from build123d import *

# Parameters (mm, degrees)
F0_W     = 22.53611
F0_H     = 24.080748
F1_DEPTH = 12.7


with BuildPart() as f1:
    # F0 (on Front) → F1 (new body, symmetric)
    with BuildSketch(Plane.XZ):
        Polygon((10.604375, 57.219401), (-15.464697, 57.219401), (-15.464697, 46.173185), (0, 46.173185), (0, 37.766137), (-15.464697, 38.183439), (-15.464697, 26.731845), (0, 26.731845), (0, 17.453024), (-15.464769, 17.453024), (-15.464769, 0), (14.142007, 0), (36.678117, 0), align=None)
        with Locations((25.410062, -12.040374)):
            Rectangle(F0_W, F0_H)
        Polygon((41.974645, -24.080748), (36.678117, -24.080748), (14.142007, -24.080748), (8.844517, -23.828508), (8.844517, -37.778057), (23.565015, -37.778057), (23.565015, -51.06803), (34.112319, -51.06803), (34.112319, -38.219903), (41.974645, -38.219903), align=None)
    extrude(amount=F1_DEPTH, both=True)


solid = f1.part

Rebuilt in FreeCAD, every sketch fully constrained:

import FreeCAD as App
import Part
import Sketcher
from FreeCAD import Vector
Q = App.Units.Quantity

doc = App.newDocument("Part")
body = doc.addObject("PartDesign::Body", "Body")

sketch1 = body.newObject("Sketcher::SketchObject", "Sketch")
sketch1.AttachmentSupport = (doc.getObject("XZ_Plane"), [""])
sketch1.MapMode = "FlatFace"
sketch1.addGeometry([
    Part.LineSegment(Vector(10.604375, 57.219401, 0), Vector(-15.464697, 57.219401, 0)),
    Part.LineSegment(Vector(-15.464697, 57.219401, 0), Vector(-15.464697, 46.173185, 0)),
    Part.LineSegment(Vector(-15.464697, 46.173185, 0), Vector(0, 46.173185, 0)),
    Part.LineSegment(Vector(0, 46.173185, 0), Vector(0, 37.766137, 0)),
    Part.LineSegment(Vector(0, 37.766137, 0), Vector(-15.464697, 38.183439, 0)),
    Part.LineSegment(Vector(-15.464697, 38.183439, 0), Vector(-15.464697, 26.731845, 0)),
    Part.LineSegment(Vector(-15.464697, 26.731845, 0), Vector(0, 26.731845, 0)),
    Part.LineSegment(Vector(0, 26.731845, 0), Vector(0, 17.453024, 0)),
    Part.LineSegment(Vector(0, 17.453024, 0), Vector(-15.464769, 17.453024, 0)),
    Part.LineSegment(Vector(-15.464769, 17.453024, 0), Vector(-15.464769, 0, 0)),
    Part.LineSegment(Vector(-15.464769, 0, 0), Vector(14.142007, 0, 0)),
    Part.LineSegment(Vector(14.142007, 0, 0), Vector(14.142007, -24.080748, 0)),
    Part.LineSegment(Vector(14.142007, -24.080748, 0), Vector(8.844517, -23.828508, 0)),
    Part.LineSegment(Vector(8.844517, -23.828508, 0), Vector(8.844517, -37.778057, 0)),
    Part.LineSegment(Vector(8.844517, -37.778057, 0), Vector(23.565015, -37.778057, 0)),
    Part.LineSegment(Vector(23.565015, -37.778057, 0), Vector(23.565015, -51.06803, 0)),
    Part.LineSegment(Vector(23.565015, -51.06803, 0), Vector(34.112319, -51.06803, 0)),
    Part.LineSegment(Vector(34.112319, -51.06803, 0), Vector(34.112319, -38.219903, 0)),
    Part.LineSegment(Vector(34.112319, -38.219903, 0), Vector(41.974645, -38.219903, 0)),
    Part.LineSegment(Vector(41.974645, -38.219903, 0), Vector(41.974645, -24.080748, 0)),
    Part.LineSegment(Vector(41.974645, -24.080748, 0), Vector(36.678117, -24.080748, 0)),
    Part.LineSegment(Vector(36.678117, -24.080748, 0), Vector(36.678117, 0, 0)),
    Part.LineSegment(Vector(36.678117, 0, 0), Vector(10.604375, 57.219401, 0)),
], False)
sketch1.addConstraint([
    Sketcher.Constraint("Coincident", 0, 2, 1, 1),
    Sketcher.Constraint("Coincident", 1, 2, 2, 1),
    Sketcher.Constraint("Coincident", 2, 2, 3, 1),
    Sketcher.Constraint("Coincident", 3, 2, 4, 1),
    Sketcher.Constraint("Coincident", 4, 2, 5, 1),
    Sketcher.Constraint("Coincident", 5, 2, 6, 1),
    Sketcher.Constraint("Coincident", 6, 2, 7, 1),
    Sketcher.Constraint("Coincident", 7, 2, 8, 1),
    Sketcher.Constraint("Coincident", 8, 2, 9, 1),
    Sketcher.Constraint("Coincident", 9, 2, 10, 1),
    Sketcher.Constraint("Coincident", 10, 2, 11, 1),
    Sketcher.Constraint("Coincident", 11, 2, 12, 1),
    Sketcher.Constraint("Coincident", 12, 2, 13, 1),
    Sketcher.Constraint("Coincident", 13, 2, 14, 1),
    Sketcher.Constraint("Coincident", 14, 2, 15, 1),
    Sketcher.Constraint("Coincident", 15, 2, 16, 1),
    Sketcher.Constraint("Coincident", 16, 2, 17, 1),
    Sketcher.Constraint("Coincident", 17, 2, 18, 1),
    Sketcher.Constraint("Coincident", 18, 2, 19, 1),
    Sketcher.Constraint("Coincident", 19, 2, 20, 1),
    Sketcher.Constraint("Coincident", 20, 2, 21, 1),
    Sketcher.Constraint("Coincident", 21, 2, 22, 1),
    Sketcher.Constraint("Coincident", 22, 2, 0, 1),
    Sketcher.Constraint("Horizontal", 0),
    Sketcher.Constraint("Vertical", 1),
    Sketcher.Constraint("Horizontal", 2),
    Sketcher.Constraint("Vertical", 3),
    Sketcher.Constraint("Vertical", 5),
    Sketcher.Constraint("Horizontal", 6),
    Sketcher.Constraint("Vertical", 7),
    Sketcher.Constraint("Horizontal", 8),
    Sketcher.Constraint("Vertical", 9),
    Sketcher.Constraint("Horizontal", 10),
    Sketcher.Constraint("Vertical", 11),
    Sketcher.Constraint("Vertical", 13),
    Sketcher.Constraint("Horizontal", 14),
    Sketcher.Constraint("Vertical", 15),
    Sketcher.Constraint("Horizontal", 16),
    Sketcher.Constraint("Vertical", 17),
    Sketcher.Constraint("Horizontal", 18),
    Sketcher.Constraint("Vertical", 19),
    Sketcher.Constraint("Horizontal", 20),
    Sketcher.Constraint("Vertical", 21),
    Sketcher.Constraint("PointOnObject", 2, 2, -2),
    Sketcher.Constraint("PointOnObject", 6, 2, -2),
    Sketcher.Constraint("PointOnObject", 9, 2, -1),
    Sketcher.Constraint("PointOnObject", 21, 2, -1),
    Sketcher.Constraint("Horizontal", 11, 2, 19, 2),
    Sketcher.Constraint("Vertical", 1, 2, 4, 2),
    Sketcher.Constraint("DistanceX", 0, 2, 0, 1, 26.069072),
    Sketcher.Constraint("DistanceX", 8, 2, 8, 1, 15.464769),
    Sketcher.Constraint("DistanceX", 20, 2, 20, 1, 5.296528),
    Sketcher.Constraint("DistanceY", 7, 2, 7, 1, 9.278821),
    Sketcher.Constraint("DistanceY", 11, 2, 11, 1, 24.080748),
    Sketcher.Constraint("DistanceY", 13, 2, 13, 1, 13.949549),
    Sketcher.Constraint("DistanceY", -1, 1, 0, 2, 57.219401),
    Sketcher.Constraint("DistanceY", 3, 2, 4, 2, 0.417302),
    Sketcher.Constraint("DistanceX", 13, 2, 16, 2, 25.267802),
    Sketcher.Constraint("DistanceX", 17, 2, 20, 2, 2.565798),
    Sketcher.Constraint("Distance", 12, 5.303492),
    Sketcher.Constraint("DistanceX", 2, 1, 2, 2, 15.464697),
    Sketcher.Constraint("DistanceX", 10, 1, 10, 2, 29.606776),
    Sketcher.Constraint("DistanceX", 14, 1, 14, 2, 14.720498),
    Sketcher.Constraint("DistanceY", 1, 2, 1, 1, 11.046216),
    Sketcher.Constraint("DistanceY", 3, 2, 3, 1, 8.407048),
    Sketcher.Constraint("DistanceY", 5, 2, 5, 1, 11.451594),
    Sketcher.Constraint("DistanceY", 15, 2, 15, 1, 13.289973),
    Sketcher.Constraint("DistanceY", 17, 1, 17, 2, 12.848127),
    Sketcher.Constraint("DistanceY", 19, 1, 19, 2, 14.139155),
])
pad1 = body.newObject("PartDesign::Pad", "Pad")
pad1.Profile = sketch1
pad1.Length = Q("1 in")
pad1.Midplane = True

doc.recompute()
